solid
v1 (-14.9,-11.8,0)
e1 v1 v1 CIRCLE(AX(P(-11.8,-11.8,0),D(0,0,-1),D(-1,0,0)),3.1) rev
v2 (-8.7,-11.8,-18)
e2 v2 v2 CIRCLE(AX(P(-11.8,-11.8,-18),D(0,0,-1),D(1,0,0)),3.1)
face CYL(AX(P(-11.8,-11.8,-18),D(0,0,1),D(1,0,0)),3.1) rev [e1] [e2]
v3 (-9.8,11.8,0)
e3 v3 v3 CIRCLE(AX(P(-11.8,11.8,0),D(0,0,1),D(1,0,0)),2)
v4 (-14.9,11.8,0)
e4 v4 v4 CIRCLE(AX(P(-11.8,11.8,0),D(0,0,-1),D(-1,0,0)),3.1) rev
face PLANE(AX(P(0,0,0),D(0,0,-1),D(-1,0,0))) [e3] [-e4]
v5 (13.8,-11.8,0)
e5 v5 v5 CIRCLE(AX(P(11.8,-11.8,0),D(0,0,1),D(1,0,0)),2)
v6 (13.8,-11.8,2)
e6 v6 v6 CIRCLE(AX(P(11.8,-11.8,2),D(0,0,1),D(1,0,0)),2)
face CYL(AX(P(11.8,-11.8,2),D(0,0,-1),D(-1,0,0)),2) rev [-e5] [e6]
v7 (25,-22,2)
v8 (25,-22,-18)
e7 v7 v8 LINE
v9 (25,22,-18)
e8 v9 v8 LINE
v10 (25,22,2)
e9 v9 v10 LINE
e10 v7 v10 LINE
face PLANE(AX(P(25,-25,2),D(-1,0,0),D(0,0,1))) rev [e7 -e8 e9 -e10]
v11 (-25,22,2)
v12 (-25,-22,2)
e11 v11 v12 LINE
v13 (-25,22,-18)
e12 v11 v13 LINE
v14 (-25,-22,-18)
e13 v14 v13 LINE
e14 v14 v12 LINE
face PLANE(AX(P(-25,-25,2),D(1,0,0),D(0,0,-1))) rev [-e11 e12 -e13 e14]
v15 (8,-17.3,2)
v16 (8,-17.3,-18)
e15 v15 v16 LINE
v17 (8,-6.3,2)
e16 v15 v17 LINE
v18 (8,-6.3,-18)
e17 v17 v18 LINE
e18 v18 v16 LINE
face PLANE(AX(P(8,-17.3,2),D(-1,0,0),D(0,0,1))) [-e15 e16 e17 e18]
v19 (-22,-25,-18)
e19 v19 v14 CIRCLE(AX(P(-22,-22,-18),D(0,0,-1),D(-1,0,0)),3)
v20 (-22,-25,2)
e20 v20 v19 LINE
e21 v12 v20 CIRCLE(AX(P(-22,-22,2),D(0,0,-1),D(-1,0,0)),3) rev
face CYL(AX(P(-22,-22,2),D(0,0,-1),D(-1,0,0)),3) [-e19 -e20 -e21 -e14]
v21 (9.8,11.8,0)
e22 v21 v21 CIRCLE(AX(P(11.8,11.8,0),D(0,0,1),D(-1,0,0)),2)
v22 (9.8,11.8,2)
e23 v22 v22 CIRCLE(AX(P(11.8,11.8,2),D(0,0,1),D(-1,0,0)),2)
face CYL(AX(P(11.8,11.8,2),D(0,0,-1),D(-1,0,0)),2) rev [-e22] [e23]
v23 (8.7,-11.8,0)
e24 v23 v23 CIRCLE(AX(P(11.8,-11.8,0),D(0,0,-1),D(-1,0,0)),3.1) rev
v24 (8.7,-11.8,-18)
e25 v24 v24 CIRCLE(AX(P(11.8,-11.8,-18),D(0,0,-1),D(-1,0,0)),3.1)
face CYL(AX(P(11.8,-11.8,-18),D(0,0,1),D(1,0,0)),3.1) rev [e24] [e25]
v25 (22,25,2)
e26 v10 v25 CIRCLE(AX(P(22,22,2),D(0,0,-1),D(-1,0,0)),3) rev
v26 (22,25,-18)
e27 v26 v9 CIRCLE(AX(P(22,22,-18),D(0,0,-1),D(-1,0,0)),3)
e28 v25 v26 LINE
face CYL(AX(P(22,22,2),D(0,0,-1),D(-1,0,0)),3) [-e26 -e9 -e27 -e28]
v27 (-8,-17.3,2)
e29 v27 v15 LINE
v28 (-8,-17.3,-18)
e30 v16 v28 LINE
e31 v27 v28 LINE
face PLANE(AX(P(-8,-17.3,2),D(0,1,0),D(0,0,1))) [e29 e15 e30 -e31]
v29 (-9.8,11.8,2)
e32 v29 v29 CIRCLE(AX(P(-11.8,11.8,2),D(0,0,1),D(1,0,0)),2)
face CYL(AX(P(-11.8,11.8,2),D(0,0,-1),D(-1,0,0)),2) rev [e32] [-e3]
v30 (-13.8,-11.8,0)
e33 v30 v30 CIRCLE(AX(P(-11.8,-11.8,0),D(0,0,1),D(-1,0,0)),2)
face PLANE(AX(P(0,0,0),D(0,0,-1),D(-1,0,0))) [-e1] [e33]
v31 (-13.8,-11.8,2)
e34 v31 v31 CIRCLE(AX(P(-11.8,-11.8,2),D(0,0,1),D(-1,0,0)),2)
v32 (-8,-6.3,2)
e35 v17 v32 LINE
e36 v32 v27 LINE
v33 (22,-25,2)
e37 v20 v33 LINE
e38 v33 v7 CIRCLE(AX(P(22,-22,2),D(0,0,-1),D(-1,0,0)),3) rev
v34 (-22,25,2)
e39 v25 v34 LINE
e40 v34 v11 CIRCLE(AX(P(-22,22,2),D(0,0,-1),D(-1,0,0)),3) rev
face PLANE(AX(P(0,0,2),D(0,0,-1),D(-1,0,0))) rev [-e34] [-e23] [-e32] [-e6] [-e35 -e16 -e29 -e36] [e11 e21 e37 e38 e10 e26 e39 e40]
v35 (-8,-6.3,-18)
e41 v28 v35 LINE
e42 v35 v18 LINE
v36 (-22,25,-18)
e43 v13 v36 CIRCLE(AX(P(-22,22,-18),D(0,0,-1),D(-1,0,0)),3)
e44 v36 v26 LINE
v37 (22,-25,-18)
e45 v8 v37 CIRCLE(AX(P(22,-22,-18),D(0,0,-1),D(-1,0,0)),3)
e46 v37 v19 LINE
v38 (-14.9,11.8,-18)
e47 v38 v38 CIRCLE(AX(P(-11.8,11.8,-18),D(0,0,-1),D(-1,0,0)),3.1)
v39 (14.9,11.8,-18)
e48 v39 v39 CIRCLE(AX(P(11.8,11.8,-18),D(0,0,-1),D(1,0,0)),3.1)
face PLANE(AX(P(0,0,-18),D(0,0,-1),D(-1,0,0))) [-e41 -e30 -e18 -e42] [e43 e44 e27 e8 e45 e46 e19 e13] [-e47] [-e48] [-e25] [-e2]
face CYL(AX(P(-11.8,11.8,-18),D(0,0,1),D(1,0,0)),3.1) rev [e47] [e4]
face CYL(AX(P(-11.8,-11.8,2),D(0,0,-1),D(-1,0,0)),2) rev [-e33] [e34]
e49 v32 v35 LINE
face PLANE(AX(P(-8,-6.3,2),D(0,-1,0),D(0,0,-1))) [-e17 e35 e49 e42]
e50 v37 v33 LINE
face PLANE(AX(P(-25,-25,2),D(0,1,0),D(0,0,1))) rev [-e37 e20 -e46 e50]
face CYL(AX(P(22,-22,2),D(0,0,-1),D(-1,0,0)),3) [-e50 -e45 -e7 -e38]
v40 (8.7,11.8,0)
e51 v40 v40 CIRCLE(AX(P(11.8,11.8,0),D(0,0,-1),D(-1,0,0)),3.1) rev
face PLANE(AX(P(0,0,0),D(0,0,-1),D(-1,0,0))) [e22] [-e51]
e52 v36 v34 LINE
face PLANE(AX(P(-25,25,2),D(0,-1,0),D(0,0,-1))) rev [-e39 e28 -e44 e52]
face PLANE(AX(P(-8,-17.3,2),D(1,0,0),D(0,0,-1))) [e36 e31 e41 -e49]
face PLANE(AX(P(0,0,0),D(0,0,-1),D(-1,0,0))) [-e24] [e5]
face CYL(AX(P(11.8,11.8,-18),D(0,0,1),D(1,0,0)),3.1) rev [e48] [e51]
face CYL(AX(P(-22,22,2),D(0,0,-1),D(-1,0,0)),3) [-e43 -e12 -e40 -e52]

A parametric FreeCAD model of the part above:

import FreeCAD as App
import Part
import Sketcher

V = App.Vector


def edges_at(feature, points):
    """Names of the edges that pass closest to the given points."""
    edges = feature.Shape.Edges
    near = lambda p: min(range(len(edges)), key=lambda i: edges[i].distToShape(Part.Vertex(*p))[0])
    return sorted({f"Edge{near(p) + 1}" for p in points})

doc = App.newDocument("Part")
body = doc.addObject("PartDesign::Body", "Body")

sketch1 = body.newObject("Sketcher::SketchObject", "Sketch")
sketch1.AttachmentSupport = (doc.getObject("XY_Plane"), [""])
sketch1.MapMode = "FlatFace"
sketch1.addGeometry([
    Part.LineSegment(V(-25, 25, 0), V(-25, -25, 0)),
    Part.LineSegment(V(-25, -25, 0), V(25, -25, 0)),
    Part.LineSegment(V(25, -25, 0), V(25, 25, 0)),
    Part.LineSegment(V(25, 25, 0), V(-25, 25, 0)),
    Part.Circle(V(-11.8, -11.8, 0), V(0, 0, 1), 2),
    Part.LineSegment(V(8, -17.3, 0), V(-8, -17.3, 0)),
    Part.LineSegment(V(-8, -17.3, 0), V(-8, -6.3, 0)),
    Part.LineSegment(V(-8, -6.3, 0), V(8, -6.3, 0)),
    Part.LineSegment(V(8, -6.3, 0), V(8, -17.3, 0)),
    Part.Circle(V(11.8, -11.8, 0), V(0, 0, 1), 2),
    Part.Circle(V(-11.8, 11.8, 0), V(0, 0, 1), 2),
    Part.Circle(V(11.8, 11.8, 0), V(0, 0, 1), 2),
], False)
sketch1.addConstraint([
    Sketcher.Constraint("Coincident", 0, 2, 1, 1),
    Sketcher.Constraint("Coincident", 1, 2, 2, 1),
    Sketcher.Constraint("Coincident", 2, 2, 3, 1),
    Sketcher.Constraint("Coincident", 3, 2, 0, 1),
    Sketcher.Constraint("Coincident", 5, 2, 6, 1),
    Sketcher.Constraint("Coincident", 6, 2, 7, 1),
    Sketcher.Constraint("Coincident", 7, 2, 8, 1),
    Sketcher.Constraint("Coincident", 8, 2, 5, 1),
    Sketcher.Constraint("Vertical", 0),
    Sketcher.Constraint("Horizontal", 1),
    Sketcher.Constraint("Vertical", 2),
    Sketcher.Constraint("Horizontal", 3),
    Sketcher.Constraint("Horizontal", 5),
    Sketcher.Constraint("Vertical", 6),
    Sketcher.Constraint("Horizontal", 7),
    Sketcher.Constraint("Vertical", 8),
    Sketcher.Constraint("Equal", 4, 9),
    Sketcher.Constraint("Equal", 9, 10),
    Sketcher.Constraint("Equal", 10, 11),
    Sketcher.Constraint("Symmetric", 9, 3, 10, 3, -1, 1),
    Sketcher.Constraint("Symmetric", 4, 3, 11, 3, -1, 1),
    Sketcher.Constraint("Symmetric", 0, 2, 2, 2, -1, 1),
    Sketcher.Constraint("Symmetric", 4, 3, 9, 3, -2),
    Sketcher.Constraint("Equal", 3, 0),
    Sketcher.Constraint("Diameter", 4, 4.0),
    Sketcher.Constraint("DistanceX", 1, 1, 1, 2, 50.0),
    Sketcher.Constraint("DistanceX", 5, 2, 5, 1, 16.0),
    Sketcher.Constraint("DistanceY", 6, 1, 6, 2, 11.0),
    Sketcher.Constraint("DistanceX", 5, 2, -1, 1, 8.0),
    Sketcher.Constraint("DistanceX", 4, 3, -1, 1, 11.8),
    Sketcher.Constraint("DistanceY", 4, 3, -1, 1, 11.8),
    Sketcher.Constraint("DistanceY", 5, 2, -1, 1, 17.3),
])
pad1 = body.newObject("PartDesign::Pad", "Pad")
pad1.Profile = sketch1
pad1.Length = 2

sketch2 = body.newObject("Sketcher::SketchObject", "Sketch001")
sketch2.AttachmentSupport = (doc.getObject("XY_Plane"), [""])
sketch2.MapMode = "FlatFace"
sketch2.addGeometry([
    Part.LineSegment(V(25, 25, 0), V(25, -25, 0)),
    Part.LineSegment(V(25, -25, 0), V(-25, -25, 0)),
    Part.LineSegment(V(-25, -25, 0), V(-25, 25, 0)),
    Part.LineSegment(V(-25, 25, 0), V(25, 25, 0)),
    Part.Circle(V(11.8, -11.8, 0), V(0, 0, 1), 3.1),
    Part.LineSegment(V(-8, -17.3, 0), V(8, -17.3, 0)),
    Part.LineSegment(V(8, -17.3, 0), V(8, -6.3, 0)),
    Part.LineSegment(V(8, -6.3, 0), V(-8, -6.3, 0)),
    Part.LineSegment(V(-8, -6.3, 0), V(-8, -17.3, 0)),
    Part.Circle(V(-11.8, -11.8, 0), V(0, 0, 1), 3.1),
    Part.Circle(V(11.8, 11.8, 0), V(0, 0, 1), 3.1),
    Part.Circle(V(-11.8, 11.8, 0), V(0, 0, 1), 3.1),
], False)
sketch2.addConstraint([
    Sketcher.Constraint("Coincident", 0, 2, 1, 1),
    Sketcher.Constraint("Coincident", 1, 2, 2, 1),
    Sketcher.Constraint("Coincident", 2, 2, 3, 1),
    Sketcher.Constraint("Coincident", 3, 2, 0, 1),
    Sketcher.Constraint("Coincident", 5, 2, 6, 1),
    Sketcher.Constraint("Coincident", 6, 2, 7, 1),
    Sketcher.Constraint("Coincident", 7, 2, 8, 1),
    Sketcher.Constraint("Coincident", 8, 2, 5, 1),
    Sketcher.Constraint("Vertical", 0),
    Sketcher.Constraint("Horizontal", 1),
    Sketcher.Constraint("Vertical", 2),
    Sketcher.Constraint("Horizontal", 3),
    Sketcher.Constraint("Horizontal", 5),
    Sketcher.Constraint("Vertical", 6),
    Sketcher.Constraint("Horizontal", 7),
    Sketcher.Constraint("Vertical", 8),
    Sketcher.Constraint("Equal", 4, 9),
    Sketcher.Constraint("Equal", 9, 10),
    Sketcher.Constraint("Equal", 10, 11),
    Sketcher.Constraint("Symmetric", 9, 3, 10, 3, -1, 1),
    Sketcher.Constraint("Symmetric", 4, 3, 11, 3, -1, 1),
    Sketcher.Constraint("Symmetric", 0, 2, 2, 2, -1, 1),
    Sketcher.Constraint("Symmetric", 4, 3, 9, 3, -2),
    Sketcher.Constraint("Equal", 3, 0),
    Sketcher.Constraint("Diameter", 4, 6.2),
    Sketcher.Constraint("DistanceX", 1, 2, 1, 1, 50.0),
    Sketcher.Constraint("DistanceX", 5, 1, 5, 2, 16.0),
    Sketcher.Constraint("DistanceY", 6, 1, 6, 2, 11.0),
    Sketcher.Constraint("DistanceX", -1, 1, 5, 2, 8.0),
    Sketcher.Constraint("DistanceX", -1, 1, 4, 3, 11.8),
    Sketcher.Constraint("DistanceY", 4, 3, -1, 1, 11.8),
    Sketcher.Constraint("DistanceY", 5, 2, -1, 1, 17.3),
])
pad2 = body.newObject("PartDesign::Pad", "Pad001")
pad2.Profile = sketch2
pad2.Length = 18
pad2.Reversed = True
doc.recompute()

fillet = body.newObject("PartDesign::Fillet", "Fillet")
fillet.Base = (pad2, edges_at(pad2, [
    (25, -25, -8),
    (-25, -25, -8),
    (-25, 25, -8),
    (25, 25, -8),
]))
fillet.Radius = 3

doc.recompute()
